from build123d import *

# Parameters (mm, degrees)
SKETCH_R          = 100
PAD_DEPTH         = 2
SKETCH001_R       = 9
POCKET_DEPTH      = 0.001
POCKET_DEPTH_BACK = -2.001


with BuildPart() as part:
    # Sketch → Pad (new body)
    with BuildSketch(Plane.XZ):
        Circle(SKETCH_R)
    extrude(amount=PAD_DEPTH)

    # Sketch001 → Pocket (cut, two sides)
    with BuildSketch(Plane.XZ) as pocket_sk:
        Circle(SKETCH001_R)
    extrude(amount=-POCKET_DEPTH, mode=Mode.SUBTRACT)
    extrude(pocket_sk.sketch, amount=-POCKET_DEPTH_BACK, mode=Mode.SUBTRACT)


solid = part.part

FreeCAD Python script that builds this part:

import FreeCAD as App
import Part
import Sketcher

V = App.Vector

doc = App.newDocument("Part")
body = doc.addObject("PartDesign::Body", "Body")

# Sketch on XZ plane
sketch1 = doc.addObject("Sketcher::SketchObject", "Sketch")
body.addObject(sketch1)
sketch1.AttachmentSupport = (doc.XZ_Plane, [""])
sketch1.MapMode = "FlatFace"
sketch1.addGeometry(Part.Circle(V(0, 0, 0), V(0, 0, 1), 100), False)
sketch1.addConstraint(Sketcher.Constraint("Coincident", 0, 3, -1, 1))
sketch1.addConstraint(Sketcher.Constraint("Diameter", 0, 200.0))
pad1 = doc.addObject("PartDesign::Pad", "Pad")
body.addObject(pad1)
pad1.Profile = sketch1
pad1.Length = 2

# Sketch on XZ plane
sketch2 = doc.addObject("Sketcher::SketchObject", "Sketch001")
body.addObject(sketch2)
sketch2.AttachmentSupport = (doc.XZ_Plane, [""])
sketch2.MapMode = "FlatFace"
sketch2.addGeometry(Part.Circle(V(0, 0, 0), V(0, 0, 1), 9), False)
sketch2.addConstraint(Sketcher.Constraint("Coincident", 0, 3, -1, 1))
sketch2.addConstraint(Sketcher.Constraint("Diameter", 0, 18.0))
pocket1 = doc.addObject("PartDesign::Pocket", "Pocket")
body.addObject(pocket1)
pocket1.Profile = sketch2
pocket1.Type = "ThroughAll"
pocket1.Midplane = True

doc.recompute()
